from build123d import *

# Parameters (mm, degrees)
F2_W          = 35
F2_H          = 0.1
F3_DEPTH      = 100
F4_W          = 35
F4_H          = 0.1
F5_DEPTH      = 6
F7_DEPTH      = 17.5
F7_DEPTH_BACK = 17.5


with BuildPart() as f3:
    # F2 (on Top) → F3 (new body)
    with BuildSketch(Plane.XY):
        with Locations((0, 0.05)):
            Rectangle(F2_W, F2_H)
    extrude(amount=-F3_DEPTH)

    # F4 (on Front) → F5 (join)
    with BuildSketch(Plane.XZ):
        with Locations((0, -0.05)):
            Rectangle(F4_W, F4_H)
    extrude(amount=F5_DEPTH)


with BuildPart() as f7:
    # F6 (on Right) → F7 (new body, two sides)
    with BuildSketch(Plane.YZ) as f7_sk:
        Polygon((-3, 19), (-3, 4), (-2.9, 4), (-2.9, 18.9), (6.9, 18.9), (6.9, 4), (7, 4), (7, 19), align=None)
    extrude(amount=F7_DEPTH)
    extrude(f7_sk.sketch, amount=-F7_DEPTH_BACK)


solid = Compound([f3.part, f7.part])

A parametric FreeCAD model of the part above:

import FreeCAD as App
import Part
import Sketcher

V = App.Vector

doc = App.newDocument("Part")
params = doc.addObject("Spreadsheet::Sheet", "Params")
for row, (alias, value) in enumerate([
    ("sketch1_width", "35 mm"),
    ("sketch1_height", "0.1 mm"),
    ("pad1_length", "100 mm"),
    ("sketch2_width", "35 mm"),
    ("sketch2_height", "0.1 mm"),
    ("pad2_length", "6 mm"),
    ("sketch3_width", "10 mm"),
    ("sketch3_height", "15 mm"),
    ("sketch3_width2", "0.1 mm"),
    ("sketch3_height2", "14.9 mm"),
    ("pad3_length", "17.5 mm"),
    ("pad3_length2", "17.5 mm"),
], start=1):
    params.set(f"A{row}", alias)
    params.set(f"B{row}", "=" + value)
    params.setAlias(f"B{row}", alias)

body = doc.addObject("PartDesign::Body", "Body")

sketch1 = body.newObject("Sketcher::SketchObject", "Sketch")
sketch1.AttachmentSupport = (doc.getObject("XY_Plane"), [""])
sketch1.MapMode = "FlatFace"
sketch1.addGeometry([
    Part.LineSegment(V(-17.5, 0.1, 0), V(-17.5, 0, 0)),
    Part.LineSegment(V(-17.5, 0, 0), V(17.5, 0, 0)),
    Part.LineSegment(V(17.5, 0, 0), V(17.5, 0.1, 0)),
    Part.LineSegment(V(17.5, 0.1, 0), V(-17.5, 0.1, 0)),
], False)
sketch1.addConstraint([
    Sketcher.Constraint("Coincident", 0, 2, 1, 1),
    Sketcher.Constraint("Coincident", 1, 2, 2, 1),
    Sketcher.Constraint("Coincident", 2, 2, 3, 1),
    Sketcher.Constraint("Coincident", 3, 2, 0, 1),
    Sketcher.Constraint("Vertical", 0),
    Sketcher.Constraint("Horizontal", 1),
    Sketcher.Constraint("Vertical", 2),
    Sketcher.Constraint("Horizontal", 3),
    Sketcher.Constraint("Symmetric", 0, 2, 1, 2, -1, 1),
    Sketcher.Constraint("DistanceX", 1, 1, 1, 2, 35.0),
    Sketcher.Constraint("DistanceY", 0, 2, 0, 1, 0.1),
])
sketch1.setExpression("Constraints[9]", "Params.sketch1_width")
sketch1.setExpression("Constraints[10]", "Params.sketch1_height")
pad1 = body.newObject("PartDesign::Pad", "Pad")
pad1.Profile = sketch1
pad1.setExpression("Length", "Params.pad1_length")
pad1.Reversed = True

sketch2 = body.newObject("Sketcher::SketchObject", "Sketch001")
sketch2.AttachmentSupport = (doc.getObject("XZ_Plane"), [""])
sketch2.MapMode = "FlatFace"
sketch2.addGeometry([
    Part.LineSegment(V(-17.5, 0, 0), V(-17.5, -0.1, 0)),
    Part.LineSegment(V(-17.5, -0.1, 0), V(17.5, -0.1, 0)),
    Part.LineSegment(V(17.5, -0.1, 0), V(17.5, 0, 0)),
    Part.LineSegment(V(17.5, 0, 0), V(-17.5, 0, 0)),
], False)
sketch2.addConstraint([
    Sketcher.Constraint("Coincident", 0, 2, 1, 1),
    Sketcher.Constraint("Coincident", 1, 2, 2, 1),
    Sketcher.Constraint("Coincident", 2, 2, 3, 1),
    Sketcher.Constraint("Coincident", 3, 2, 0, 1),
    Sketcher.Constraint("Vertical", 0),
    Sketcher.Constraint("Horizontal", 1),
    Sketcher.Constraint("Vertical", 2),
    Sketcher.Constraint("Horizontal", 3),
    Sketcher.Constraint("Symmetric", 2, 2, 3, 2, -1, 1),
    Sketcher.Constraint("DistanceX", 1, 1, 1, 2, 35.0),
    Sketcher.Constraint("DistanceY", 0, 2, 0, 1, 0.1),
])
sketch2.setExpression("Constraints[9]", "Params.sketch2_width")
sketch2.setExpression("Constraints[10]", "Params.sketch2_height")
pad2 = body.newObject("PartDesign::Pad", "Pad001")
pad2.Profile = sketch2
pad2.setExpression("Length", "Params.pad2_length")
body2 = doc.addObject("PartDesign::Body", "Body001")

sketch3 = body2.newObject("Sketcher::SketchObject", "Sketch002")
sketch3.AttachmentSupport = (doc.getObject("YZ_Plane001"), [""])
sketch3.MapMode = "FlatFace"
sketch3.addGeometry([
    Part.LineSegment(V(-3, 19, 0), V(-3, 4, 0)),
    Part.LineSegment(V(-3, 4, 0), V(-2.9, 4, 0)),
    Part.LineSegment(V(-2.9, 4, 0), V(-2.9, 18.9, 0)),
    Part.LineSegment(V(-2.9, 18.9, 0), V(6.9, 18.9, 0)),
    Part.LineSegment(V(6.9, 18.9, 0), V(6.9, 4, 0)),
    Part.LineSegment(V(6.9, 4, 0), V(7, 4, 0)),
    Part.LineSegment(V(7, 4, 0), V(7, 19, 0)),
    Part.LineSegment(V(7, 19, 0), V(-3, 19, 0)),
], False)
sketch3.addConstraint([
    Sketcher.Constraint("Coincident", 0, 2, 1, 1),
    Sketcher.Constraint("Coincident", 1, 2, 2, 1),
    Sketcher.Constraint("Coincident", 2, 2, 3, 1),
    Sketcher.Constraint("Coincident", 3, 2, 4, 1),
    Sketcher.Constraint("Coincident", 4, 2, 5, 1),
    Sketcher.Constraint("Coincident", 5, 2, 6, 1),
    Sketcher.Constraint("Coincident", 6, 2, 7, 1),
    Sketcher.Constraint("Coincident", 7, 2, 0, 1),
    Sketcher.Constraint("Vertical", 0),
    Sketcher.Constraint("Horizontal", 1),
    Sketcher.Constraint("Vertical", 2),
    Sketcher.Constraint("Horizontal", 3),
    Sketcher.Constraint("Vertical", 4),
    Sketcher.Constraint("Horizontal", 5),
    Sketcher.Constraint("Vertical", 6),
    Sketcher.Constraint("Horizontal", 7),
    Sketcher.Constraint("Horizontal", 1, 2, 4, 2),
    Sketcher.Constraint("Equal", 1, 5),
    Sketcher.Constraint("DistanceX", 7, 2, 7, 1, 10.0),
    Sketcher.Constraint("DistanceY", 0, 2, 0, 1, 15.0),
    Sketcher.Constraint("DistanceX", 1, 1, 1, 2, 0.1),
    Sketcher.Constraint("DistanceY", 2, 1, 2, 2, 14.9),
    Sketcher.Constraint("DistanceX", 0, 2, -1, 1, 3.0),
    Sketcher.Constraint("DistanceY", -1, 1, 0, 2, 4.0),
])
sketch3.setExpression("Constraints[18]", "Params.sketch3_width")
sketch3.setExpression("Constraints[19]", "Params.sketch3_height")
sketch3.setExpression("Constraints[20]", "Params.sketch3_width2")
sketch3.setExpression("Constraints[21]", "Params.sketch3_height2")
pad3 = body2.newObject("PartDesign::Pad", "Pad002")
pad3.Profile = sketch3
pad3.Type = "TwoLengths"
pad3.setExpression("Length", "Params.pad3_length")
pad3.setExpression("Length2", "Params.pad3_length2")

doc.recompute()
